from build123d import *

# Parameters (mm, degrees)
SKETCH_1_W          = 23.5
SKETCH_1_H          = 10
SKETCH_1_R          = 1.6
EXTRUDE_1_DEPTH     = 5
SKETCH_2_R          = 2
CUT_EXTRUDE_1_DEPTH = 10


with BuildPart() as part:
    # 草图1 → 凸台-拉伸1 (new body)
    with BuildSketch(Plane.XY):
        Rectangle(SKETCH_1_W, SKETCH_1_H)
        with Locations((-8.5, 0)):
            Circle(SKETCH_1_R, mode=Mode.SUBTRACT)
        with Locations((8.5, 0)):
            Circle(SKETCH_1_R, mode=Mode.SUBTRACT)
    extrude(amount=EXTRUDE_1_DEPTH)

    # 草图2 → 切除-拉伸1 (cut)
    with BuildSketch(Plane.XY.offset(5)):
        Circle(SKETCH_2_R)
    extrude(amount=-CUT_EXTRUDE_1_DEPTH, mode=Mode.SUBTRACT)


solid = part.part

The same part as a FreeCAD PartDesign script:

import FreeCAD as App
import Part
import Sketcher
from FreeCAD import Vector
Q = App.Units.Quantity


def add_polygon(sketch, points):
    """Adds a closed chain of lines whose ends are joined by coincident constraints."""
    first, n = sketch.GeometryCount, len(points)
    for a, b in zip(points, points[1:] + points[:1]):
        sketch.addGeometry(Part.LineSegment(App.Vector(*a, 0), App.Vector(*b, 0)), False)
    for i in range(n):
        sketch.addConstraint(Sketcher.Constraint("Coincident", first + i, 2, first + (i + 1) % n, 1))

doc = App.newDocument("Part")
body = doc.addObject("PartDesign::Body", "Body")

# Sketch on XY plane
sketch1 = doc.addObject("Sketcher::SketchObject", "Sketch")
body.addObject(sketch1)
sketch1.AttachmentSupport = (doc.XY_Plane, [""])
sketch1.MapMode = "FlatFace"
add_polygon(sketch1, [(-11.8, 5), (-11.8, -5), (11.8, -5), (11.8, 5)])  # lines 0-3
sketch1.addGeometry(Part.Circle(Vector(-8.5, 0, 0), Vector(0, 0, 1), 1.6), False)  # 4
sketch1.addGeometry(Part.Circle(Vector(8.5, 0, 0), Vector(0, 0, 1), 1.6), False)  # 5
sketch1.addConstraint([
    Sketcher.Constraint("Vertical", 0),
    Sketcher.Constraint("Horizontal", 1),
    Sketcher.Constraint("Vertical", 2),
    Sketcher.Constraint("Horizontal", 3),
    Sketcher.Constraint("Equal", 4, 5),
    Sketcher.Constraint("Symmetric", 4, 3, 5, 3, -1, 1),
    Sketcher.Constraint("Symmetric", 0, 2, 2, 2, -1, 1),
    Sketcher.Constraint("PointOnObject", 4, 3, -1),
    Sketcher.Constraint("Diameter", 4, Q("3.2 mm")),
    Sketcher.Constraint("DistanceY", 0, 2, 0, 1, Q("10 mm")),
    Sketcher.Constraint("DistanceX", 1, 1, 1, 2, Q("23.5 mm")),
    Sketcher.Constraint("DistanceX", 4, 3, 5, 3, Q("17 mm")),
])
pad1 = doc.addObject("PartDesign::Pad", "Pad")
body.addObject(pad1)
pad1.Profile = sketch1
pad1.Length = 5

# Sketch on XY plane
sketch2 = doc.addObject("Sketcher::SketchObject", "Sketch001")
body.addObject(sketch2)
sketch2.AttachmentSupport = (doc.XY_Plane, [""])
sketch2.MapMode = "FlatFace"
sketch2.AttachmentOffset = App.Placement(Vector(0, 0, 5), App.Rotation())
sketch2.addGeometry(Part.Circle(Vector(0, 0, 0), Vector(0, 0, 1), 2), False)
sketch2.addConstraint([
    Sketcher.Constraint("Coincident", 0, 3, -1, 1),
    Sketcher.Constraint("Diameter", 0, Q("4 mm")),
])
pocket1 = doc.addObject("PartDesign::Pocket", "Pocket")
body.addObject(pocket1)
pocket1.Profile = sketch2
pocket1.Length = 10

doc.recompute()
